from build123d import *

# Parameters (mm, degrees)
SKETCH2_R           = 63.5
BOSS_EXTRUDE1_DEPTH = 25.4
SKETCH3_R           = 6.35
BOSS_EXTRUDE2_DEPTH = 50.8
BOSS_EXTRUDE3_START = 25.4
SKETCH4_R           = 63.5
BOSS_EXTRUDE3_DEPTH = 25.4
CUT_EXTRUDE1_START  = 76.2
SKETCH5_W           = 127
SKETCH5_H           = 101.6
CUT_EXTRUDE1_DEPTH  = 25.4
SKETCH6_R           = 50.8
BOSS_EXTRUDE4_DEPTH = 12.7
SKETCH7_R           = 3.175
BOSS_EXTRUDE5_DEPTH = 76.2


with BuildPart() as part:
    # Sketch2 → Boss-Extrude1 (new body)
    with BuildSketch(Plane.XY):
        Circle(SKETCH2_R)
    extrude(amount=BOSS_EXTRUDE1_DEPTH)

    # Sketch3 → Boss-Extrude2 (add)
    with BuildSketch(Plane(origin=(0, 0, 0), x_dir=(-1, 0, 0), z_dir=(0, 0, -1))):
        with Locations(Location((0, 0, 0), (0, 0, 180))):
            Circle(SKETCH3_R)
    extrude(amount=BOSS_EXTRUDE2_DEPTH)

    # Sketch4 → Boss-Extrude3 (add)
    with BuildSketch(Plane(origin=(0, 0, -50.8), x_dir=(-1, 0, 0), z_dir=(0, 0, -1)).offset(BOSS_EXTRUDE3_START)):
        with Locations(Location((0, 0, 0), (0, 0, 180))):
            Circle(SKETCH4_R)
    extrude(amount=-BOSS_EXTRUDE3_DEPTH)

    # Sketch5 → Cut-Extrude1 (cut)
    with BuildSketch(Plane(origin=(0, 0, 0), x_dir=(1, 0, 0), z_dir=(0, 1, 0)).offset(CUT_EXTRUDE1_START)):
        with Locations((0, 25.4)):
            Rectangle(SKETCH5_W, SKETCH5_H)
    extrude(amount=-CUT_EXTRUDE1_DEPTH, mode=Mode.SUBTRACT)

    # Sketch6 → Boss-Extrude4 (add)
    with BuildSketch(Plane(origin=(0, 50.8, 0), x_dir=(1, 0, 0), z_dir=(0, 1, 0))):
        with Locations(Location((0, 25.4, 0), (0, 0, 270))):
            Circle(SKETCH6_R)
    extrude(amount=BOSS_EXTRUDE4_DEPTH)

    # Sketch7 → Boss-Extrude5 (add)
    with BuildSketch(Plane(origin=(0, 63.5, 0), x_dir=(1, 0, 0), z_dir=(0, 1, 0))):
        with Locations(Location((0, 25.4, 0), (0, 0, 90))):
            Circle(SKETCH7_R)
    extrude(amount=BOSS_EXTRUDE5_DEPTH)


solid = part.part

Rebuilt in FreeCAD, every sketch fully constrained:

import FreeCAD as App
import Part
import Sketcher
from FreeCAD import Vector
Q = App.Units.Quantity


def add_polygon(sketch, points):
    """Adds a closed chain of lines whose ends are joined by coincident constraints."""
    first, n = sketch.GeometryCount, len(points)
    for a, b in zip(points, points[1:] + points[:1]):
        sketch.addGeometry(Part.LineSegment(App.Vector(*a, 0), App.Vector(*b, 0)), False)
    for i in range(n):
        sketch.addConstraint(Sketcher.Constraint("Coincident", first + i, 2, first + (i + 1) % n, 1))

doc = App.newDocument("Part")
body = doc.addObject("PartDesign::Body", "Body")

# Sketch on XY plane
sketch1 = body.newObject("Sketcher::SketchObject", "Sketch")
sketch1.AttachmentSupport = (doc.getObject("XY_Plane"), [""])
sketch1.MapMode = "FlatFace"
sketch1.addGeometry(Part.Circle(Vector(0, 0, 0), Vector(0, 0, 1), 64), False)
sketch1.addConstraint(Sketcher.Constraint("Coincident", 0, 3, -1, 1))
sketch1.addConstraint(Sketcher.Constraint("Diameter", 0, Q("5 in")))
pad1 = body.newObject("PartDesign::Pad", "Pad")
pad1.Profile = sketch1
pad1.Length = Q("1 in")

# Sketch on XY plane
sketch2 = body.newObject("Sketcher::SketchObject", "Sketch001")
sketch2.AttachmentSupport = (doc.getObject("XY_Plane"), [""])
sketch2.MapMode = "FlatFace"
sketch2.addGeometry(Part.Circle(Vector(0, 0, 0), Vector(0, 0, 1), 6), False)
sketch2.addConstraint(Sketcher.Constraint("Coincident", 0, 3, -1, 1))
sketch2.addConstraint(Sketcher.Constraint("Diameter", 0, Q("0.5 in")))
pad2 = body.newObject("PartDesign::Pad", "Pad001")
pad2.Profile = sketch2
pad2.Length = Q("2 in")
pad2.Reversed = True

# Sketch on XY plane
sketch3 = body.newObject("Sketcher::SketchObject", "Sketch002")
sketch3.AttachmentSupport = (doc.getObject("XY_Plane"), [""])
sketch3.MapMode = "FlatFace"
sketch3.AttachmentOffset = App.Placement(Vector(0, 0, -3 * 25.4), App.Rotation())
sketch3.addGeometry(Part.Circle(Vector(0, 0, 0), Vector(0, 0, 1), 64), False)
sketch3.addConstraint(Sketcher.Constraint("Coincident", 0, 3, -1, 1))
sketch3.addConstraint(Sketcher.Constraint("Diameter", 0, Q("5 in")))
pad3 = body.newObject("PartDesign::Pad", "Pad002")
pad3.Profile = sketch3
pad3.Length = Q("1 in")

# Sketch on XZ plane
sketch4 = body.newObject("Sketcher::SketchObject", "Sketch003")
sketch4.AttachmentSupport = (doc.getObject("XZ_Plane"), [""])
sketch4.MapMode = "FlatFace"
sketch4.AttachmentOffset = App.Placement(Vector(0, 0, -3 * 25.4), App.Rotation())
add_polygon(sketch4, [(-64, -76), (-64, 25), (64, 25), (64, -76)])  # lines 0-3
sketch4.addConstraint(Sketcher.Constraint("Vertical", 0))
sketch4.addConstraint(Sketcher.Constraint("Horizontal", 1))
sketch4.addConstraint(Sketcher.Constraint("Vertical", 2))
sketch4.addConstraint(Sketcher.Constraint("Horizontal", 3))
sketch4.addConstraint(Sketcher.Constraint("DistanceX", 1, 1, 1, 2, Q("5 in")))
sketch4.addConstraint(Sketcher.Constraint("DistanceY", 0, 1, 0, 2, Q("4 in")))
sketch4.addConstraint(Sketcher.Constraint("DistanceY", -1, 1, 0, 2, Q("1 in")))
sketch4.addConstraint(Sketcher.Constraint("DistanceX", 0, 2, -1, 1, Q("2.5 in")))
pocket1 = body.newObject("PartDesign::Pocket", "Pocket")
pocket1.Profile = sketch4
pocket1.Length = Q("1 in")
pocket1.Reversed = True

# Sketch on XZ plane
sketch5 = body.newObject("Sketcher::SketchObject", "Sketch004")
sketch5.AttachmentSupport = (doc.getObject("XZ_Plane"), [""])
sketch5.MapMode = "FlatFace"
sketch5.AttachmentOffset = App.Placement(Vector(0, 0, -2 * 25.4), App.Rotation())
sketch5.addGeometry(Part.Circle(Vector(0, -25, 0), Vector(0, 0, 1), 51), False)
sketch5.addConstraint(Sketcher.Constraint("PointOnObject", 0, 3, -2))
sketch5.addConstraint(Sketcher.Constraint("Diameter", 0, Q("4 in")))
sketch5.addConstraint(Sketcher.Constraint("DistanceY", 0, 3, -1, 1, Q("1 in")))
pad4 = body.newObject("PartDesign::Pad", "Pad003")
pad4.Profile = sketch5
pad4.Length = Q("0.5 in")
pad4.Reversed = True

# Sketch on XZ plane
sketch6 = body.newObject("Sketcher::SketchObject", "Sketch005")
sketch6.AttachmentSupport = (doc.getObject("XZ_Plane"), [""])
sketch6.MapMode = "FlatFace"
sketch6.AttachmentOffset = App.Placement(Vector(0, 0, -2.5 * 25.4), App.Rotation())
sketch6.addGeometry(Part.Circle(Vector(0, -25.4, 0), Vector(0, 0, 1), 3.2), False)
sketch6.addConstraint(Sketcher.Constraint("PointOnObject", 0, 3, -2))
sketch6.addConstraint(Sketcher.Constraint("Diameter", 0, Q("0.25 in")))
sketch6.addConstraint(Sketcher.Constraint("DistanceY", 0, 3, -1, 1, Q("1 in")))
pad5 = body.newObject("PartDesign::Pad", "Pad004")
pad5.Profile = sketch6
pad5.Length = Q("3 in")
pad5.Reversed = True

doc.recompute()
